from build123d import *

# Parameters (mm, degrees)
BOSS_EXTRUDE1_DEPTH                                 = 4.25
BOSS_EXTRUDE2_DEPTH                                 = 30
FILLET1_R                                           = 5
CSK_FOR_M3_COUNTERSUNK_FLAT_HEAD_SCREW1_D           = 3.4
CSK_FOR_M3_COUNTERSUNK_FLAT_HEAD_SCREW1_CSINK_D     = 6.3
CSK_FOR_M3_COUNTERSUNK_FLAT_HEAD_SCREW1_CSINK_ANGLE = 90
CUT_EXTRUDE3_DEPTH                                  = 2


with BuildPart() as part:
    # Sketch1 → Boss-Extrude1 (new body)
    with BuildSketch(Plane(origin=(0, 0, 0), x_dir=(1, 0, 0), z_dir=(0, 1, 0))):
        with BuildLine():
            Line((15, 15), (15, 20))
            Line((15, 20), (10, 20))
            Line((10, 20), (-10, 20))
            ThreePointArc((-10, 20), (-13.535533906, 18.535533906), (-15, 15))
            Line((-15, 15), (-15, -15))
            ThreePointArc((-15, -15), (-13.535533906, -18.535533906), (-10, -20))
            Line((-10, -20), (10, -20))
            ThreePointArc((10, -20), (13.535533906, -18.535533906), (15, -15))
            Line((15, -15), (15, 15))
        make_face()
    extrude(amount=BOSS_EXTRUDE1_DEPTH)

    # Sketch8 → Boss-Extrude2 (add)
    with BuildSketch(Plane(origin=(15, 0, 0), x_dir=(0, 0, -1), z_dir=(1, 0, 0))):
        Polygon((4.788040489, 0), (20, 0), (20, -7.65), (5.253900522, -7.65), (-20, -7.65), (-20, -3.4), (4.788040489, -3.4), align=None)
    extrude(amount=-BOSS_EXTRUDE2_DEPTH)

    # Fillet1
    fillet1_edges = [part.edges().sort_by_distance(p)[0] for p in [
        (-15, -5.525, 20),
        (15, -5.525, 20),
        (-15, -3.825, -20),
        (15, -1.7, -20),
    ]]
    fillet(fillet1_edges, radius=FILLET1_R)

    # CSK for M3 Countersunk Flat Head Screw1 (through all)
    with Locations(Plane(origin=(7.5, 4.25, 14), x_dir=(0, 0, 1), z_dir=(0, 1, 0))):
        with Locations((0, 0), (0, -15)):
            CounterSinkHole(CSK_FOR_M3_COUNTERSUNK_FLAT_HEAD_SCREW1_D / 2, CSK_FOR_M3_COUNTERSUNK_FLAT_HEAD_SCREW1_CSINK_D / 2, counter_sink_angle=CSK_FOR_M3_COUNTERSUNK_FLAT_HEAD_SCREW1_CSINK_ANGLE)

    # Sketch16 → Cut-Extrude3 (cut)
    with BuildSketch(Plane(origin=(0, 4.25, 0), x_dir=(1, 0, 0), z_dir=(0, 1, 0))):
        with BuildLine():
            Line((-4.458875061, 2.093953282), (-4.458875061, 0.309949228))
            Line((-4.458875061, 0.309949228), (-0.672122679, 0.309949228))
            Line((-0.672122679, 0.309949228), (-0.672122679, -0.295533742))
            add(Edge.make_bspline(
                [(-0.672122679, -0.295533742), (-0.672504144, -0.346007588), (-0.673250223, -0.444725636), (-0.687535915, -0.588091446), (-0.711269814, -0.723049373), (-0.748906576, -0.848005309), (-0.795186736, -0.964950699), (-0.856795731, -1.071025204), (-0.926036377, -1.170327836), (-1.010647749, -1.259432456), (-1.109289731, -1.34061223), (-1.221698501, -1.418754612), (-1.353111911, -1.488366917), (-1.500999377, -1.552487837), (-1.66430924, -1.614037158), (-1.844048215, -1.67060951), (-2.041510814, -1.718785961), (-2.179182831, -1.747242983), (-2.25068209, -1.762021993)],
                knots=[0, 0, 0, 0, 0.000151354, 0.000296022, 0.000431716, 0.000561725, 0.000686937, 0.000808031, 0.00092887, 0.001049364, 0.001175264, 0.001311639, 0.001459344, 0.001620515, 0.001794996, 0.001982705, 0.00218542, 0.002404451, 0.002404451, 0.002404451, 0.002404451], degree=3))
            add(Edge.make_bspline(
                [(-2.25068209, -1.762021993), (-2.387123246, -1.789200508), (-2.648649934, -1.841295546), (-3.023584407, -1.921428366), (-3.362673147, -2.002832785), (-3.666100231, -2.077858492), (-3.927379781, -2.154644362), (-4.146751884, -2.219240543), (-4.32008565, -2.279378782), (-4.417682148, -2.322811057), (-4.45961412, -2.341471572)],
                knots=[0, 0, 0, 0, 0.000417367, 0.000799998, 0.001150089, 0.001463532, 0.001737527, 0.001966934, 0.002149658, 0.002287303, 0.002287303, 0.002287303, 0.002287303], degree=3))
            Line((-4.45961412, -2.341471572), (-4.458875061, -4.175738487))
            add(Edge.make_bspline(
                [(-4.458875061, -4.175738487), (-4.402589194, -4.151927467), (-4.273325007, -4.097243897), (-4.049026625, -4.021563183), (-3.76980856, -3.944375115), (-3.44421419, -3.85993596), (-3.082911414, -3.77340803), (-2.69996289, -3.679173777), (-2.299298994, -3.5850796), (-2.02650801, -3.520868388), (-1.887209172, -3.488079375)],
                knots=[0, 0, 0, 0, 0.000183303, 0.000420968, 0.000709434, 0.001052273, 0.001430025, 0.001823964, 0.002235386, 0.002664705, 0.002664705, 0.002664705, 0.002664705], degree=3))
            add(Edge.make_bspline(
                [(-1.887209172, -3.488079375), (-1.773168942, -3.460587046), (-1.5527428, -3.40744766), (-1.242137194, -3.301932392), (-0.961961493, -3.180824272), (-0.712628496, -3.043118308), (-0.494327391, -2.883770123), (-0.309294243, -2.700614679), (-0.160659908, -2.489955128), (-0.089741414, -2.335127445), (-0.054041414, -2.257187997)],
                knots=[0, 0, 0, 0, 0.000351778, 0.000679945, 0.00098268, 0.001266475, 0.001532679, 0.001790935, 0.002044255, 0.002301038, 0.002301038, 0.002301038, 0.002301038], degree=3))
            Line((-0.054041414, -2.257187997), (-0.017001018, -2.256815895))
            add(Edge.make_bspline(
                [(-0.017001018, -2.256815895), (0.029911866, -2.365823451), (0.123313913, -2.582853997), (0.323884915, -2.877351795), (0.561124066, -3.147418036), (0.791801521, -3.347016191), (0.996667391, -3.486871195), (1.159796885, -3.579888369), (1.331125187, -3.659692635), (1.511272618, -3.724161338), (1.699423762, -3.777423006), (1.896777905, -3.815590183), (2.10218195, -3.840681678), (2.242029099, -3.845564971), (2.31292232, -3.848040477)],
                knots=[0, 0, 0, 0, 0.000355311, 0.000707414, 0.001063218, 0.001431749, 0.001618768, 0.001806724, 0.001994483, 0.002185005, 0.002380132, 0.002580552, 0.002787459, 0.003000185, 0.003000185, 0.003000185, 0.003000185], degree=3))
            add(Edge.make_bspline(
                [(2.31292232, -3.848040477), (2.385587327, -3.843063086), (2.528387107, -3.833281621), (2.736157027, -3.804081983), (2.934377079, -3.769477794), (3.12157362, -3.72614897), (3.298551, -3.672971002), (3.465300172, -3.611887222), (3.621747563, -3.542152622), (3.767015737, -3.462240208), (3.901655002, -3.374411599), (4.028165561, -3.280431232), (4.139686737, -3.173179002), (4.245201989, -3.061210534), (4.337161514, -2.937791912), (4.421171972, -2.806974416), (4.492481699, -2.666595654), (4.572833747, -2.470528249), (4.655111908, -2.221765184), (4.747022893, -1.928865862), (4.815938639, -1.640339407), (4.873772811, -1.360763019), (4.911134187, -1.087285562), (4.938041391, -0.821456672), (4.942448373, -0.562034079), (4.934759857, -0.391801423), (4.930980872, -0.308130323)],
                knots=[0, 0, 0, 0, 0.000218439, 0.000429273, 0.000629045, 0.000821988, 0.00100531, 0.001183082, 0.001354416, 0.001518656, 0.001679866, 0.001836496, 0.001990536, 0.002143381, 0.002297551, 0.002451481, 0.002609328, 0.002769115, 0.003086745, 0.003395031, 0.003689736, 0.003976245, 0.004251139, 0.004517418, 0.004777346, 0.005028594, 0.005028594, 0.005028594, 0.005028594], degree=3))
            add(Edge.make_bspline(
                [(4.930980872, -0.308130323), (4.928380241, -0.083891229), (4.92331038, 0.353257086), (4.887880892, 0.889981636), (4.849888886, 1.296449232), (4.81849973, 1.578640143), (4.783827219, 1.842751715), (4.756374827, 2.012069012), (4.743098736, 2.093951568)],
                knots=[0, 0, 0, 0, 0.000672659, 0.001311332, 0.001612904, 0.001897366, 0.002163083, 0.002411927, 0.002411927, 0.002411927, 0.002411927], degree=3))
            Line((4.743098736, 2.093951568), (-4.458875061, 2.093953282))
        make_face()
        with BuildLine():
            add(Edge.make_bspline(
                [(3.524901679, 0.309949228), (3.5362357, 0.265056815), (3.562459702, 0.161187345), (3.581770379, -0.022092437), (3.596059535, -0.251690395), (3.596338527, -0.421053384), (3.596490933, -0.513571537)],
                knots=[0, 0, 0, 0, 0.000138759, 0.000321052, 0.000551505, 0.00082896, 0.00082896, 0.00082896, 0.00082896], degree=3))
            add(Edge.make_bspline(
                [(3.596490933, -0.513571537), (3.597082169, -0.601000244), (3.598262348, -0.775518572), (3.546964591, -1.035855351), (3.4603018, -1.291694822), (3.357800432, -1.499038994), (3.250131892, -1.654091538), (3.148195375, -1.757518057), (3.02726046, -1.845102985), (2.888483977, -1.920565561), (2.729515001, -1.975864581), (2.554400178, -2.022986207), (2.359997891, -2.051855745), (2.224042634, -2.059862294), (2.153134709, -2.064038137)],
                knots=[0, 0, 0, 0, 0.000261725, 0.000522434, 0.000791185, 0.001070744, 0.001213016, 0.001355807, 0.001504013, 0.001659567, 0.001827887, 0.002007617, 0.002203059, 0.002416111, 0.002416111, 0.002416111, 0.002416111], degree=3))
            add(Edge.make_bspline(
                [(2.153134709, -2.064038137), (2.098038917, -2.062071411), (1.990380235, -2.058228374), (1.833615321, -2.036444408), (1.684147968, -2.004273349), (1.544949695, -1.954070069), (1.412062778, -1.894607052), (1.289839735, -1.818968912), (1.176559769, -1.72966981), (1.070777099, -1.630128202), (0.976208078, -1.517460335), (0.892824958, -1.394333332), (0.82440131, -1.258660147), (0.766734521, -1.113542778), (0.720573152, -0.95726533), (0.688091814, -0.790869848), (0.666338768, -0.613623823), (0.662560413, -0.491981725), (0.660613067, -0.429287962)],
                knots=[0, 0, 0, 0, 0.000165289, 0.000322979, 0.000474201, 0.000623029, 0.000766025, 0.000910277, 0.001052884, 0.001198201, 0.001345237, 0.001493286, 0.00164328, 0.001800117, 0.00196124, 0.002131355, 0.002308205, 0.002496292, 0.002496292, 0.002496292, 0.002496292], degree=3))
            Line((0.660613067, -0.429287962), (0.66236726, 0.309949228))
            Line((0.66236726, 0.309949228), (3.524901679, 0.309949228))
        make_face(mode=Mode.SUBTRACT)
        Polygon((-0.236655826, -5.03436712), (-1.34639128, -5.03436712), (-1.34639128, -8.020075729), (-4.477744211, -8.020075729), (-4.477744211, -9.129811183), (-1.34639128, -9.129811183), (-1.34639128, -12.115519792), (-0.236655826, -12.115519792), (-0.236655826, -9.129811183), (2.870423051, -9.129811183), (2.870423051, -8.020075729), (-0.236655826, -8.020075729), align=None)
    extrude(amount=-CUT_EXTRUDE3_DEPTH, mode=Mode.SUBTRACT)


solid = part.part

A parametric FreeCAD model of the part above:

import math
import FreeCAD as App
import Part
import Sketcher
Q = App.Units.Quantity


def edges_at(feature, points):
    """Names of the edges that pass closest to the given points."""
    edges = feature.Shape.Edges
    near = lambda p: min(range(len(edges)), key=lambda i: edges[i].distToShape(Part.Vertex(*p))[0])
    return sorted({f"Edge{near(p) + 1}" for p in points})

doc = App.newDocument("Part")
body = doc.addObject("PartDesign::Body", "Body")

# Sketch on XZ plane
sketch1 = body.newObject("Sketcher::SketchObject", "Sketch")
sketch1.AttachmentSupport = (doc.getObject("XZ_Plane"), [""])
sketch1.MapMode = "FlatFace"
sketch1.addGeometry(Part.LineSegment(App.Vector(15, -20, 0), App.Vector(-10, -20, 0)), False)
sketch1.addGeometry(Part.ArcOfCircle(Part.Circle(App.Vector(-10, -15, 0), App.Vector(0, 0, 1), 5), math.radians(180), math.radians(270)), False)
sketch1.addGeometry(Part.LineSegment(App.Vector(-15, -15, 0), App.Vector(-15, 15, 0)), False)
sketch1.addGeometry(Part.ArcOfCircle(Part.Circle(App.Vector(-10, 15, 0), App.Vector(0, 0, 1), 5), math.radians(90), math.radians(180)), False)
sketch1.addGeometry(Part.LineSegment(App.Vector(-10, 20, 0), App.Vector(10, 20, 0)), False)
sketch1.addGeometry(Part.ArcOfCircle(Part.Circle(App.Vector(10, 15, 0), App.Vector(0, 0, 1), 5), math.radians(0), math.radians(90)), False)
sketch1.addGeometry(Part.LineSegment(App.Vector(15, 15, 0), App.Vector(15, -20, 0)), False)
sketch1.addConstraint(Sketcher.Constraint("Tangent", 0, 2, 1, 2))
sketch1.addConstraint(Sketcher.Constraint("Tangent", 1, 1, 2, 1))
sketch1.addConstraint(Sketcher.Constraint("Tangent", 2, 2, 3, 2))
sketch1.addConstraint(Sketcher.Constraint("Tangent", 3, 1, 4, 1))
sketch1.addConstraint(Sketcher.Constraint("Tangent", 4, 2, 5, 2))
sketch1.addConstraint(Sketcher.Constraint("Tangent", 5, 1, 6, 1))
sketch1.addConstraint(Sketcher.Constraint("Coincident", 6, 2, 0, 1))
sketch1.addConstraint(Sketcher.Constraint("Horizontal", 0))
sketch1.addConstraint(Sketcher.Constraint("Vertical", 2))
sketch1.addConstraint(Sketcher.Constraint("Horizontal", 4))
sketch1.addConstraint(Sketcher.Constraint("Vertical", 6))
sketch1.addConstraint(Sketcher.Constraint("Equal", 1, 3))
sketch1.addConstraint(Sketcher.Constraint("Equal", 3, 5))
sketch1.addConstraint(Sketcher.Constraint("Symmetric", 1, 3, 5, 3, -1, 1))
sketch1.addConstraint(Sketcher.Constraint("Radius", 1, Q("5 mm")))
sketch1.addConstraint(Sketcher.Constraint("DistanceX", 0, 2, 0, 1, Q("25 mm")))
sketch1.addConstraint(Sketcher.Constraint("DistanceY", 2, 1, 2, 2, Q("30 mm")))
pad1 = body.newObject("PartDesign::Pad", "Pad")
pad1.Profile = sketch1
pad1.Length = 4.25
pad1.Reversed = True

# Sketch on YZ plane
sketch2 = body.newObject("Sketcher::SketchObject", "Sketch001")
sketch2.AttachmentSupport = (doc.getObject("YZ_Plane"), [""])
sketch2.MapMode = "FlatFace"
sketch2.AttachmentOffset = App.Placement(App.Vector(0, 0, 15), App.Rotation())
sketch2.addGeometry(Part.LineSegment(App.Vector(0, -20, 0), App.Vector(0, -4.8, 0)), False)
sketch2.addGeometry(Part.LineSegment(App.Vector(0, -4.8, 0), App.Vector(-3.4, -4.8, 0)), False)
sketch2.addGeometry(Part.LineSegment(App.Vector(-3.4, -4.8, 0), App.Vector(-3.4, 20, 0)), False)
sketch2.addGeometry(Part.LineSegment(App.Vector(-3.4, 20, 0), App.Vector(-7.7, 20, 0)), False)
sketch2.addGeometry(Part.LineSegment(App.Vector(-7.7, 20, 0), App.Vector(-7.7, -20, 0)), False)
sketch2.addGeometry(Part.LineSegment(App.Vector(-7.7, -20, 0), App.Vector(0, -20, 0)), False)
sketch2.addConstraint(Sketcher.Constraint("Coincident", 0, 2, 1, 1))
sketch2.addConstraint(Sketcher.Constraint("Coincident", 1, 2, 2, 1))
sketch2.addConstraint(Sketcher.Constraint("Coincident", 2, 2, 3, 1))
sketch2.addConstraint(Sketcher.Constraint("Coincident", 3, 2, 4, 1))
sketch2.addConstraint(Sketcher.Constraint("Coincident", 4, 2, 5, 1))
sketch2.addConstraint(Sketcher.Constraint("Coincident", 5, 2, 0, 1))
sketch2.addConstraint(Sketcher.Constraint("Vertical", 0))
sketch2.addConstraint(Sketcher.Constraint("Horizontal", 1))
sketch2.addConstraint(Sketcher.Constraint("Vertical", 2))
sketch2.addConstraint(Sketcher.Constraint("Horizontal", 3))
sketch2.addConstraint(Sketcher.Constraint("Vertical", 4))
sketch2.addConstraint(Sketcher.Constraint("Horizontal", 5))
sketch2.addConstraint(Sketcher.Constraint("PointOnObject", 0, 2, -2))
sketch2.addConstraint(Sketcher.Constraint("DistanceY", 4, 2, 4, 1, Q("40 mm")))
sketch2.addConstraint(Sketcher.Constraint("DistanceX", 1, 2, 1, 1, Q("3.4 mm")))
sketch2.addConstraint(Sketcher.Constraint("DistanceY", -1, 1, 2, 2, Q("20 mm")))
sketch2.addConstraint(Sketcher.Constraint("DistanceX", 3, 2, 3, 1, Q("4.25 mm")))
sketch2.addConstraint(Sketcher.Constraint("DistanceY", 0, 1, 0, 2, Q("15.21196 mm")))
pad2 = body.newObject("PartDesign::Pad", "Pad001")
pad2.Profile = sketch2
pad2.Length = 30
pad2.Reversed = True
doc.recompute()

fillet = body.newObject("PartDesign::Fillet", "Fillet")
fillet.Base = (pad2, edges_at(pad2, [
    (-15, -5.525, 20),
    (15, -5.525, 20),
    (-15, -3.825, -20),
    (15, -1.7, -20),
]))
fillet.Radius = 5

# Sketch on XZ plane
sketch3 = body.newObject("Sketcher::SketchObject", "Sketch002")
sketch3.AttachmentSupport = (doc.getObject("XZ_Plane"), [""])
sketch3.MapMode = "FlatFace"
sketch3.AttachmentOffset = App.Placement(App.Vector(0, 0, -4.25), App.Rotation())
sketch3.addGeometry(Part.Circle(App.Vector(7.5, 14, 0), App.Vector(0, 0, 1), 1.7), False)
sketch3.addGeometry(Part.Circle(App.Vector(-7.5, 14, 0), App.Vector(0, 0, 1), 1.7), False)
sketch3.addConstraint(Sketcher.Constraint("Equal", 0, 1))
sketch3.addConstraint(Sketcher.Constraint("Symmetric", 0, 3, 1, 3, -2))
sketch3.addConstraint(Sketcher.Constraint("Diameter", 0, Q("3.4 mm")))
sketch3.addConstraint(Sketcher.Constraint("DistanceY", -1, 1, 0, 3, Q("14 mm")))
sketch3.addConstraint(Sketcher.Constraint("DistanceX", 1, 3, 0, 3, Q("15 mm")))
doc.recompute()
hole = body.newObject("PartDesign::Hole", "Hole")
hole.Profile = sketch3
hole.ThreadType = "None"
hole.Diameter = 3.4
hole.DepthType = "ThroughAll"
hole.HoleCutType = "Countersink"
hole.HoleCutDiameter = 6.3
hole.HoleCutCountersinkAngle = 90
hole.Reversed = True

# Sketch on XZ plane
sketch4 = body.newObject("Sketcher::SketchObject", "Sketch003")
sketch4.AttachmentSupport = (doc.getObject("XZ_Plane"), [""])
sketch4.MapMode = "FlatFace"
sketch4.AttachmentOffset = App.Placement(App.Vector(0, 0, -4.25), App.Rotation())
sketch4.addGeometry(Part.LineSegment(App.Vector(-4.458875, -2.093953, 0), App.Vector(-4.458875, -0.309949, 0)), False)
sketch4.addGeometry(Part.LineSegment(App.Vector(-4.458875, -0.309949, 0), App.Vector(-0.672123, -0.309949, 0)), False)
sketch4.addGeometry(Part.LineSegment(App.Vector(-0.672123, -0.309949, 0), App.Vector(-0.672123, 0.295534, 0)), False)
sketch4.addGeometry(Part.BSplineCurve([App.Vector(-0.672123, 0.295534, 0), App.Vector(-0.672504, 0.346008, 0), App.Vector(-0.67325, 0.444726, 0), App.Vector(-0.687536, 0.588091, 0), App.Vector(-0.71127, 0.723049, 0), App.Vector(-0.748907, 0.848005, 0), App.Vector(-0.795187, 0.964951, 0), App.Vector(-0.856796, 1.071025, 0), App.Vector(-0.926036, 1.170328, 0), App.Vector(-1.010648, 1.259432, 0), App.Vector(-1.10929, 1.340612, 0), App.Vector(-1.221699, 1.418755, 0), App.Vector(-1.353112, 1.488367, 0), App.Vector(-1.500999, 1.552488, 0), App.Vector(-1.664309, 1.614037, 0), App.Vector(-1.844048, 1.67061, 0), App.Vector(-2.041511, 1.718786, 0), App.Vector(-2.179183, 1.747243, 0), App.Vector(-2.250682, 1.762022, 0)], [4, 1, 1, 1, 1, 1, 1, 1, 1, 1, 1, 1, 1, 1, 1, 1, 4], [0, 0.000151354, 0.000296022, 0.000431716, 0.000561725, 0.000686937, 0.000808031, 0.00092887, 0.001049364, 0.001175264, 0.001311639, 0.001459344, 0.001620515, 0.001794996, 0.001982705, 0.00218542, 0.002404451], False, 3, [1, 1, 1, 1, 1, 1, 1, 1, 1, 1, 1, 1, 1, 1, 1, 1, 1, 1, 1], False), False)
sketch4.addGeometry(Part.BSplineCurve([App.Vector(-2.250682, 1.762022, 0), App.Vector(-2.387123, 1.789201, 0), App.Vector(-2.64865, 1.841296, 0), App.Vector(-3.023584, 1.921428, 0), App.Vector(-3.362673, 2.002833, 0), App.Vector(-3.6661, 2.077858, 0), App.Vector(-3.92738, 2.154644, 0), App.Vector(-4.146752, 2.219241, 0), App.Vector(-4.320086, 2.279379, 0), App.Vector(-4.417682, 2.322811, 0), App.Vector(-4.459614, 2.341472, 0)], [4, 1, 1, 1, 1, 1, 1, 1, 4], [0, 0.000417367, 0.000799998, 0.001150089, 0.001463532, 0.001737527, 0.001966934, 0.002149658, 0.002287303], False, 3, [1, 1, 1, 1, 1, 1, 1, 1, 1, 1, 1], False), False)
sketch4.addGeometry(Part.LineSegment(App.Vector(-4.459614, 2.341472, 0), App.Vector(-4.458875, 4.175738, 0)), False)
sketch4.addGeometry(Part.BSplineCurve([App.Vector(-4.458875, 4.175738, 0), App.Vector(-4.402589, 4.151927, 0), App.Vector(-4.273325, 4.097244, 0), App.Vector(-4.049027, 4.021563, 0), App.Vector(-3.769809, 3.944375, 0), App.Vector(-3.444214, 3.859936, 0), App.Vector(-3.082911, 3.773408, 0), App.Vector(-2.699963, 3.679174, 0), App.Vector(-2.299299, 3.58508, 0), App.Vector(-2.026508, 3.520868, 0), App.Vector(-1.887209, 3.488079, 0)], [4, 1, 1, 1, 1, 1, 1, 1, 4], [0, 0.000183303, 0.000420968, 0.000709434, 0.001052273, 0.001430025, 0.001823964, 0.002235386, 0.002664705], False, 3, [1, 1, 1, 1, 1, 1, 1, 1, 1, 1, 1], False), False)
sketch4.addGeometry(Part.BSplineCurve([App.Vector(-1.887209, 3.488079, 0), App.Vector(-1.773169, 3.460587, 0), App.Vector(-1.552743, 3.407448, 0), App.Vector(-1.242137, 3.301932, 0), App.Vector(-0.961961, 3.180824, 0), App.Vector(-0.712628, 3.043118, 0), App.Vector(-0.494327, 2.88377, 0), App.Vector(-0.309294, 2.700615, 0), App.Vector(-0.16066, 2.489955, 0), App.Vector(-0.089741, 2.335127, 0), App.Vector(-0.054041, 2.257188, 0)], [4, 1, 1, 1, 1, 1, 1, 1, 4], [0, 0.000351778, 0.000679945, 0.00098268, 0.001266475, 0.001532679, 0.001790935, 0.002044255, 0.002301038], False, 3, [1, 1, 1, 1, 1, 1, 1, 1, 1, 1, 1], False), False)
sketch4.addGeometry(Part.LineSegment(App.Vector(-0.054041, 2.257188, 0), App.Vector(-0.017001, 2.256816, 0)), False)
sketch4.addGeometry(Part.BSplineCurve([App.Vector(-0.017001, 2.256816, 0), App.Vector(0.029912, 2.365823, 0), App.Vector(0.123314, 2.582854, 0), App.Vector(0.323885, 2.877352, 0), App.Vector(0.561124, 3.147418, 0), App.Vector(0.791802, 3.347016, 0), App.Vector(0.996667, 3.486871, 0), App.Vector(1.159797, 3.579888, 0), App.Vector(1.331125, 3.659693, 0), App.Vector(1.511273, 3.724161, 0), App.Vector(1.699424, 3.777423, 0), App.Vector(1.896778, 3.81559, 0), App.Vector(2.102182, 3.840682, 0), App.Vector(2.242029, 3.845565, 0), App.Vector(2.312922, 3.84804, 0)], [4, 1, 1, 1, 1, 1, 1, 1, 1, 1, 1, 1, 4], [0, 0.000355311, 0.000707414, 0.001063218, 0.001431749, 0.001618768, 0.001806724, 0.001994483, 0.002185005, 0.002380132, 0.002580552, 0.002787459, 0.003000185], False, 3, [1, 1, 1, 1, 1, 1, 1, 1, 1, 1, 1, 1, 1, 1, 1], False), False)
sketch4.addGeometry(Part.BSplineCurve([App.Vector(2.312922, 3.84804, 0), App.Vector(2.385587, 3.843063, 0), App.Vector(2.528387, 3.833282, 0), App.Vector(2.736157, 3.804082, 0), App.Vector(2.934377, 3.769478, 0), App.Vector(3.121574, 3.726149, 0), App.Vector(3.298551, 3.672971, 0), App.Vector(3.4653, 3.611887, 0), App.Vector(3.621748, 3.542153, 0), App.Vector(3.767016, 3.46224, 0), App.Vector(3.901655, 3.374412, 0), App.Vector(4.028166, 3.280431, 0), App.Vector(4.139687, 3.173179, 0), App.Vector(4.245202, 3.061211, 0), App.Vector(4.337162, 2.937792, 0), App.Vector(4.421172, 2.806974, 0), App.Vector(4.492482, 2.666596, 0), App.Vector(4.572834, 2.470528, 0), App.Vector(4.655112, 2.221765, 0), App.Vector(4.747023, 1.928866, 0), App.Vector(4.815939, 1.640339, 0), App.Vector(4.873773, 1.360763, 0), App.Vector(4.911134, 1.087286, 0), App.Vector(4.938041, 0.821457, 0), App.Vector(4.942448, 0.562034, 0), App.Vector(4.93476, 0.391801, 0), App.Vector(4.930981, 0.30813, 0)], [4, 1, 1, 1, 1, 1, 1, 1, 1, 1, 1, 1, 1, 1, 1, 1, 1, 1, 1, 1, 1, 1, 1, 1, 4], [0, 0.000218439, 0.000429273, 0.000629045, 0.000821988, 0.00100531, 0.001183082, 0.001354416, 0.001518656, 0.001679866, 0.001836496, 0.001990536, 0.002143381, 0.002297551, 0.002451481, 0.002609328, 0.002769115, 0.003086745, 0.003395031, 0.003689736, 0.003976245, 0.004251139, 0.004517418, 0.004777346, 0.005028594], False, 3, [1, 1, 1, 1, 1, 1, 1, 1, 1, 1, 1, 1, 1, 1, 1, 1, 1, 1, 1, 1, 1, 1, 1, 1, 1, 1, 1], False), False)
sketch4.addGeometry(Part.BSplineCurve([App.Vector(4.930981, 0.30813, 0), App.Vector(4.92838, 0.083891, 0), App.Vector(4.92331, -0.353257, 0), App.Vector(4.887881, -0.889982, 0), App.Vector(4.849889, -1.296449, 0), App.Vector(4.8185, -1.57864, 0), App.Vector(4.783827, -1.842752, 0), App.Vector(4.756375, -2.012069, 0), App.Vector(4.743099, -2.093952, 0)], [4, 1, 1, 1, 1, 1, 4], [0, 0.000672659, 0.001311332, 0.001612904, 0.001897366, 0.002163083, 0.002411927], False, 3, [1, 1, 1, 1, 1, 1, 1, 1, 1], False), False)
sketch4.addGeometry(Part.LineSegment(App.Vector(4.743099, -2.093952, 0), App.Vector(-4.458875, -2.093953, 0)), False)
sketch4.addGeometry(Part.LineSegment(App.Vector(0.662367, -0.309949, 0), App.Vector(3.524902, -0.309949, 0)), False)
sketch4.addGeometry(Part.BSplineCurve([App.Vector(3.524902, -0.309949, 0), App.Vector(3.536236, -0.265057, 0), App.Vector(3.56246, -0.161187, 0), App.Vector(3.58177, 0.022092, 0), App.Vector(3.59606, 0.25169, 0), App.Vector(3.596339, 0.421053, 0), App.Vector(3.596491, 0.513572, 0)], [4, 1, 1, 1, 4], [0, 0.000138759, 0.000321052, 0.000551505, 0.00082896], False, 3, [1, 1, 1, 1, 1, 1, 1], False), False)
sketch4.addGeometry(Part.BSplineCurve([App.Vector(3.596491, 0.513572, 0), App.Vector(3.597082, 0.601, 0), App.Vector(3.598262, 0.775519, 0), App.Vector(3.546965, 1.035855, 0), App.Vector(3.460302, 1.291695, 0), App.Vector(3.3578, 1.499039, 0), App.Vector(3.250132, 1.654092, 0), App.Vector(3.148195, 1.757518, 0), App.Vector(3.02726, 1.845103, 0), App.Vector(2.888484, 1.920566, 0), App.Vector(2.729515, 1.975865, 0), App.Vector(2.5544, 2.022986, 0), App.Vector(2.359998, 2.051856, 0), App.Vector(2.224043, 2.059862, 0), App.Vector(2.153135, 2.064038, 0)], [4, 1, 1, 1, 1, 1, 1, 1, 1, 1, 1, 1, 4], [0, 0.000261725, 0.000522434, 0.000791185, 0.001070744, 0.001213016, 0.001355807, 0.001504013, 0.001659567, 0.001827887, 0.002007617, 0.002203059, 0.002416111], False, 3, [1, 1, 1, 1, 1, 1, 1, 1, 1, 1, 1, 1, 1, 1, 1], False), False)
sketch4.addGeometry(Part.BSplineCurve([App.Vector(2.153135, 2.064038, 0), App.Vector(2.098039, 2.062071, 0), App.Vector(1.99038, 2.058228, 0), App.Vector(1.833615, 2.036444, 0), App.Vector(1.684148, 2.004273, 0), App.Vector(1.54495, 1.95407, 0), App.Vector(1.412063, 1.894607, 0), App.Vector(1.28984, 1.818969, 0), App.Vector(1.17656, 1.72967, 0), App.Vector(1.070777, 1.630128, 0), App.Vector(0.976208, 1.51746, 0), App.Vector(0.892825, 1.394333, 0), App.Vector(0.824401, 1.25866, 0), App.Vector(0.766735, 1.113543, 0), App.Vector(0.720573, 0.957265, 0), App.Vector(0.688092, 0.79087, 0), App.Vector(0.666339, 0.613624, 0), App.Vector(0.66256, 0.491982, 0), App.Vector(0.660613, 0.429288, 0)], [4, 1, 1, 1, 1, 1, 1, 1, 1, 1, 1, 1, 1, 1, 1, 1, 4], [0, 0.000165289, 0.000322979, 0.000474201, 0.000623029, 0.000766025, 0.000910277, 0.001052884, 0.001198201, 0.001345237, 0.001493286, 0.00164328, 0.001800117, 0.00196124, 0.002131355, 0.002308205, 0.002496292], False, 3, [1, 1, 1, 1, 1, 1, 1, 1, 1, 1, 1, 1, 1, 1, 1, 1, 1, 1, 1], False), False)
sketch4.addGeometry(Part.LineSegment(App.Vector(0.660613, 0.429288, 0), App.Vector(0.662367, -0.309949, 0)), False)
sketch4.addGeometry(Part.LineSegment(App.Vector(-0.236656, 5.034367, 0), App.Vector(-1.346391, 5.034367, 0)), False)
sketch4.addGeometry(Part.LineSegment(App.Vector(-1.346391, 5.034367, 0), App.Vector(-1.346391, 8.020076, 0)), False)
sketch4.addGeometry(Part.LineSegment(App.Vector(-1.346391, 8.020076, 0), App.Vector(-4.477744, 8.020076, 0)), False)
sketch4.addGeometry(Part.LineSegment(App.Vector(-4.477744, 8.020076, 0), App.Vector(-4.477744, 9.129811, 0)), False)
sketch4.addGeometry(Part.LineSegment(App.Vector(-4.477744, 9.129811, 0), App.Vector(-1.346391, 9.129811, 0)), False)
sketch4.addGeometry(Part.LineSegment(App.Vector(-1.346391, 9.129811, 0), App.Vector(-1.346391, 12.11552, 0)), False)
sketch4.addGeometry(Part.LineSegment(App.Vector(-1.346391, 12.11552, 0), App.Vector(-0.236656, 12.11552, 0)), False)
sketch4.addGeometry(Part.LineSegment(App.Vector(-0.236656, 12.11552, 0), App.Vector(-0.236656, 9.129811, 0)), False)
sketch4.addGeometry(Part.LineSegment(App.Vector(-0.236656, 9.129811, 0), App.Vector(2.870423, 9.129811, 0)), False)
sketch4.addGeometry(Part.LineSegment(App.Vector(2.870423, 9.129811, 0), App.Vector(2.870423, 8.020076, 0)), False)
sketch4.addGeometry(Part.LineSegment(App.Vector(2.870423, 8.020076, 0), App.Vector(-0.236656, 8.020076, 0)), False)
sketch4.addGeometry(Part.LineSegment(App.Vector(-0.236656, 8.020076, 0), App.Vector(-0.236656, 5.034367, 0)), False)
sketch4.addConstraint(Sketcher.Constraint("Block", 3))
sketch4.addConstraint(Sketcher.Constraint("Block", 4))
sketch4.addConstraint(Sketcher.Constraint("Block", 6))
sketch4.addConstraint(Sketcher.Constraint("Block", 7))
sketch4.addConstraint(Sketcher.Constraint("Block", 9))
sketch4.addConstraint(Sketcher.Constraint("Block", 10))
sketch4.addConstraint(Sketcher.Constraint("Block", 11))
sketch4.addConstraint(Sketcher.Constraint("Block", 14))
sketch4.addConstraint(Sketcher.Constraint("Block", 15))
sketch4.addConstraint(Sketcher.Constraint("Block", 16))
sketch4.addConstraint(Sketcher.Constraint("Coincident", 0, 2, 1, 1))
sketch4.addConstraint(Sketcher.Constraint("Coincident", 1, 2, 2, 1))
sketch4.addConstraint(Sketcher.Constraint("Coincident", 2, 2, 3, 1))
sketch4.addConstraint(Sketcher.Constraint("Coincident", 4, 2, 5, 1))
sketch4.addConstraint(Sketcher.Constraint("Coincident", 5, 2, 6, 1))
sketch4.addConstraint(Sketcher.Constraint("Coincident", 7, 2, 8, 1))
sketch4.addConstraint(Sketcher.Constraint("Coincident", 8, 2, 9, 1))
sketch4.addConstraint(Sketcher.Constraint("Coincident", 11, 2, 12, 1))
sketch4.addConstraint(Sketcher.Constraint("Coincident", 12, 2, 0, 1))
sketch4.addConstraint(Sketcher.Constraint("Coincident", 13, 2, 14, 1))
sketch4.addConstraint(Sketcher.Constraint("Coincident", 16, 2, 17, 1))
sketch4.addConstraint(Sketcher.Constraint("Coincident", 17, 2, 13, 1))
sketch4.addConstraint(Sketcher.Constraint("Coincident", 18, 2, 19, 1))
sketch4.addConstraint(Sketcher.Constraint("Coincident", 19, 2, 20, 1))
sketch4.addConstraint(Sketcher.Constraint("Coincident", 20, 2, 21, 1))
sketch4.addConstraint(Sketcher.Constraint("Coincident", 21, 2, 22, 1))
sketch4.addConstraint(Sketcher.Constraint("Coincident", 22, 2, 23, 1))
sketch4.addConstraint(Sketcher.Constraint("Coincident", 23, 2, 24, 1))
sketch4.addConstraint(Sketcher.Constraint("Coincident", 24, 2, 25, 1))
sketch4.addConstraint(Sketcher.Constraint("Coincident", 25, 2, 26, 1))
sketch4.addConstraint(Sketcher.Constraint("Coincident", 26, 2, 27, 1))
sketch4.addConstraint(Sketcher.Constraint("Coincident", 27, 2, 28, 1))
sketch4.addConstraint(Sketcher.Constraint("Coincident", 28, 2, 29, 1))
sketch4.addConstraint(Sketcher.Constraint("Coincident", 29, 2, 18, 1))
sketch4.addConstraint(Sketcher.Constraint("Vertical", 0))
sketch4.addConstraint(Sketcher.Constraint("Horizontal", 1))
sketch4.addConstraint(Sketcher.Constraint("Vertical", 2))
sketch4.addConstraint(Sketcher.Constraint("Horizontal", 12))
sketch4.addConstraint(Sketcher.Constraint("Horizontal", 13))
sketch4.addConstraint(Sketcher.Constraint("Horizontal", 18))
sketch4.addConstraint(Sketcher.Constraint("Vertical", 19))
sketch4.addConstraint(Sketcher.Constraint("Horizontal", 20))
sketch4.addConstraint(Sketcher.Constraint("Vertical", 21))
sketch4.addConstraint(Sketcher.Constraint("Horizontal", 22))
sketch4.addConstraint(Sketcher.Constraint("Vertical", 23))
sketch4.addConstraint(Sketcher.Constraint("Horizontal", 24))
sketch4.addConstraint(Sketcher.Constraint("Vertical", 25))
sketch4.addConstraint(Sketcher.Constraint("Horizontal", 26))
sketch4.addConstraint(Sketcher.Constraint("Vertical", 27))
sketch4.addConstraint(Sketcher.Constraint("Horizontal", 28))
sketch4.addConstraint(Sketcher.Constraint("Vertical", 29))
sketch4.addConstraint(Sketcher.Constraint("Horizontal", 1, 2, 13, 2))
sketch4.addConstraint(Sketcher.Constraint("Horizontal", 22, 2, 25, 2))
sketch4.addConstraint(Sketcher.Constraint("Horizontal", 20, 2, 27, 2))
sketch4.addConstraint(Sketcher.Constraint("Vertical", 0, 2, 5, 2))
sketch4.addConstraint(Sketcher.Constraint("Vertical", 19, 2, 22, 2))
sketch4.addConstraint(Sketcher.Constraint("Vertical", 25, 2, 28, 2))
sketch4.addConstraint(Sketcher.Constraint("Equal", 24, 21))
sketch4.addConstraint(Sketcher.Constraint("Equal", 19, 23))
sketch4.addConstraint(Sketcher.Constraint("DistanceX", 26, 1, 26, 2, Q("3.107079 mm")))
sketch4.addConstraint(Sketcher.Constraint("DistanceY", 19, 1, 19, 2, Q("2.985709 mm")))
sketch4.addConstraint(Sketcher.Constraint("DistanceX", 13, 1, 13, 2, Q("2.862534 mm")))
sketch4.addConstraint(Sketcher.Constraint("DistanceX", 18, 2, 18, 1, Q("1.109735 mm")))
sketch4.addConstraint(Sketcher.Constraint("DistanceX", 20, 2, 20, 1, Q("3.131353 mm")))
sketch4.addConstraint(Sketcher.Constraint("DistanceX", 18, 2, -1, 1, Q("1.346391 mm")))
sketch4.addConstraint(Sketcher.Constraint("DistanceY", -1, 1, 21, 2, Q("9.129811 mm")))
pocket1 = body.newObject("PartDesign::Pocket", "Pocket")
pocket1.Profile = sketch4
pocket1.Length = 2
pocket1.Reversed = True

doc.recompute()
